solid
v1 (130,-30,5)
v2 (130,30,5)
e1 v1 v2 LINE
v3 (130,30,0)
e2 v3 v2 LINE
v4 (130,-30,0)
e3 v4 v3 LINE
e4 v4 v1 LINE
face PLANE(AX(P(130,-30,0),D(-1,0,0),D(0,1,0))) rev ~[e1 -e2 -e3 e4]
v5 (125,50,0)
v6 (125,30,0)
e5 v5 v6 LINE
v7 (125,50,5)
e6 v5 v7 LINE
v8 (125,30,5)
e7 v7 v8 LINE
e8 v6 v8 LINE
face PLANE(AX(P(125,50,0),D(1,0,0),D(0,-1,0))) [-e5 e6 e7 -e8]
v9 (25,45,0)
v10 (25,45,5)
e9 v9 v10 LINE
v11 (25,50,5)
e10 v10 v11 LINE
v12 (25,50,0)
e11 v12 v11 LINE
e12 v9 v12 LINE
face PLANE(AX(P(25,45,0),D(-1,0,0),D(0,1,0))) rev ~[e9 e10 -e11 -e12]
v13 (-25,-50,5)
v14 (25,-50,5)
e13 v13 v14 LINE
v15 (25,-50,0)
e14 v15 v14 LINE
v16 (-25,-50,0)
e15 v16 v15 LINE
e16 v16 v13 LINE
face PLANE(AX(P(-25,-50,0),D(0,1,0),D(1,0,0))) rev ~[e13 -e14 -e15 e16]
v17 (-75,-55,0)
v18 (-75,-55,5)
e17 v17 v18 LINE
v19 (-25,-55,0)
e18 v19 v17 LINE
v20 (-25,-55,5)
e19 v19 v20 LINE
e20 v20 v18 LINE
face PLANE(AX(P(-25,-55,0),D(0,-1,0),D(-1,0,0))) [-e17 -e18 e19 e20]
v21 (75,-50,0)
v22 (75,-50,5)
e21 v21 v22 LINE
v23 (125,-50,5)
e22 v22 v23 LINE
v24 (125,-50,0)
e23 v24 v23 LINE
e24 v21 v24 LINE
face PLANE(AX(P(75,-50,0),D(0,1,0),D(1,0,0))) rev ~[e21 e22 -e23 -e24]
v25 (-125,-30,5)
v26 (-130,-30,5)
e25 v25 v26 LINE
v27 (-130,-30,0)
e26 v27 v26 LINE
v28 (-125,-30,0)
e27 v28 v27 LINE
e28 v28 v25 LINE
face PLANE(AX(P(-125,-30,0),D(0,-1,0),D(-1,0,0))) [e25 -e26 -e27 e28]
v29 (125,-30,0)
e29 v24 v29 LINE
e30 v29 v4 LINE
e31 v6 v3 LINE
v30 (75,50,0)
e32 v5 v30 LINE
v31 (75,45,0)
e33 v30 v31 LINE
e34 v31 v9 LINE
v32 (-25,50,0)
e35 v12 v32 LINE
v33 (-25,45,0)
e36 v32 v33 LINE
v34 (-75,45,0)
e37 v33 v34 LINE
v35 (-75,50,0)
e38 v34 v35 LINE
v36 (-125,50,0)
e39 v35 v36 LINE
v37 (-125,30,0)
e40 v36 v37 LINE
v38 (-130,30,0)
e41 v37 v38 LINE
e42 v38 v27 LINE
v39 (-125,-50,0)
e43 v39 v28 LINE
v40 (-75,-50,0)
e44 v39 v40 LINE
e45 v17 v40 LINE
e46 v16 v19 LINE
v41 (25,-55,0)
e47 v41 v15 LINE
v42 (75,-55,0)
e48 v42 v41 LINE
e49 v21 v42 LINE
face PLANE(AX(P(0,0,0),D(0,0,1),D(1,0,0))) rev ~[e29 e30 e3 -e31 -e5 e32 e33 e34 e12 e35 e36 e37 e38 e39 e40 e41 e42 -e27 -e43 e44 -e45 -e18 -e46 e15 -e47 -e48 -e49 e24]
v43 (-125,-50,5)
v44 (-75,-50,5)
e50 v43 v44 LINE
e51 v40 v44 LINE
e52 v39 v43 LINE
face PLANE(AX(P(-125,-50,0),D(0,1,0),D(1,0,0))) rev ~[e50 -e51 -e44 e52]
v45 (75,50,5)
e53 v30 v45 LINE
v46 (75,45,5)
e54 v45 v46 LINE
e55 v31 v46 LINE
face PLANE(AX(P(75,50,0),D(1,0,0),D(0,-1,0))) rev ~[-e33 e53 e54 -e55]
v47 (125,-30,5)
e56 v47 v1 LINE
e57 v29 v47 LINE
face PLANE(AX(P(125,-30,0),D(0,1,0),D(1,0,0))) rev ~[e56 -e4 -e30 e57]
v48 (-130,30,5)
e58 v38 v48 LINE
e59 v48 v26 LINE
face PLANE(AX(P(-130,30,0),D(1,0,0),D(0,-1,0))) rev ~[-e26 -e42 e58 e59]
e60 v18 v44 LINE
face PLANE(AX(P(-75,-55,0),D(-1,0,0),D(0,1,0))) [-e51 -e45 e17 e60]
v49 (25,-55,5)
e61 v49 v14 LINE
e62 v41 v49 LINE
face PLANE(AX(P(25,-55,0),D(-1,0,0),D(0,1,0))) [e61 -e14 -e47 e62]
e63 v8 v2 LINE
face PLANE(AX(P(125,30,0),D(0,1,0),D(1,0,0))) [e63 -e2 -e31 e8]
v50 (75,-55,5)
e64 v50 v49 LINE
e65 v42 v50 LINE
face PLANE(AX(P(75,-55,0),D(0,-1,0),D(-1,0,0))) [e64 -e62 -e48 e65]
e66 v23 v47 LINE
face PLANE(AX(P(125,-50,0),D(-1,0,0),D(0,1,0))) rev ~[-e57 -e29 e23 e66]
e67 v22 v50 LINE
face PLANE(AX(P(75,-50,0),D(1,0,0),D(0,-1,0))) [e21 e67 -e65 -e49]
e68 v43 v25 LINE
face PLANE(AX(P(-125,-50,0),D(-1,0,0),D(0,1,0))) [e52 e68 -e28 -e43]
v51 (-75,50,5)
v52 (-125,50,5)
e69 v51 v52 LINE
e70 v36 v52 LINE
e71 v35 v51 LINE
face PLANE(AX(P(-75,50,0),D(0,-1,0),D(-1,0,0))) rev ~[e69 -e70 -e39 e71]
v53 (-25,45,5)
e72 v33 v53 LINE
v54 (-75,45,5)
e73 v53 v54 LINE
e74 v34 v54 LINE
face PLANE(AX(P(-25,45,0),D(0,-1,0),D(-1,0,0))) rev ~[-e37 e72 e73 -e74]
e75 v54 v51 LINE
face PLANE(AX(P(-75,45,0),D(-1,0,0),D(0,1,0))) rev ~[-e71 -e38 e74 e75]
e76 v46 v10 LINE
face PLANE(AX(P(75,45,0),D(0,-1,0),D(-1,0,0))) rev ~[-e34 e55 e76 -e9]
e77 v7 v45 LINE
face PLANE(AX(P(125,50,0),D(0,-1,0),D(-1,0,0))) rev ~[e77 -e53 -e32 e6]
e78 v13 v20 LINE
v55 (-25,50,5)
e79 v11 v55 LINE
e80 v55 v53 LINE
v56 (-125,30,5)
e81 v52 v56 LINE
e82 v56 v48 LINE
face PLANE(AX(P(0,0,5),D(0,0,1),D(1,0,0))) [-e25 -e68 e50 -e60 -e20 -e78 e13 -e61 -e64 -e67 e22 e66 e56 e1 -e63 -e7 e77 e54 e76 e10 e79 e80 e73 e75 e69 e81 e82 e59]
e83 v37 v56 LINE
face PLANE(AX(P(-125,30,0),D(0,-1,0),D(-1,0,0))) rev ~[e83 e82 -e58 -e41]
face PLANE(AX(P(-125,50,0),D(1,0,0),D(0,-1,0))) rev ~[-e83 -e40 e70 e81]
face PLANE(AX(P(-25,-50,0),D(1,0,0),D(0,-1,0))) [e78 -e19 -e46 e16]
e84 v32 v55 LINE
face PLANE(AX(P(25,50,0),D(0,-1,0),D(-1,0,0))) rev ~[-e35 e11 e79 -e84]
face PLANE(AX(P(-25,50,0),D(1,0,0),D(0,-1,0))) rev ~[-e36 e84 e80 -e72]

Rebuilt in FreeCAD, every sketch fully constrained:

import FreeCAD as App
import Part
import Sketcher

doc = App.newDocument("Part")
body = doc.addObject("PartDesign::Body", "Body")

# Sketch on XY plane
sketch1 = body.newObject("Sketcher::SketchObject", "Sketch")
sketch1.AttachmentSupport = (doc.getObject("XY_Plane"), [""])
sketch1.MapMode = "FlatFace"
sketch1.addGeometry([
    Part.LineSegment(App.Vector(-125, -30, 0), App.Vector(-125, -50, 0)),  # 0
    Part.LineSegment(App.Vector(-125, -50, 0), App.Vector(-75, -50, 0)),  # 1
    Part.LineSegment(App.Vector(-75, -50, 0), App.Vector(-75, -55, 0)),  # 2
    Part.LineSegment(App.Vector(-75, -55, 0), App.Vector(-25, -55, 0)),  # 3
    Part.LineSegment(App.Vector(-25, -55, 0), App.Vector(-25, -50, 0)),  # 4
    Part.LineSegment(App.Vector(-25, -50, 0), App.Vector(25, -50, 0)),  # 5
    Part.LineSegment(App.Vector(25, -50, 0), App.Vector(25, -55, 0)),  # 6
    Part.LineSegment(App.Vector(25, -55, 0), App.Vector(75, -55, 0)),  # 7
    Part.LineSegment(App.Vector(75, -55, 0), App.Vector(75, -50, 0)),  # 8
    Part.LineSegment(App.Vector(75, -50, 0), App.Vector(125, -50, 0)),  # 9
    Part.LineSegment(App.Vector(125, -50, 0), App.Vector(125, -30, 0)),  # 10
    Part.LineSegment(App.Vector(125, -30, 0), App.Vector(130, -30, 0)),  # 11
    Part.LineSegment(App.Vector(130, -30, 0), App.Vector(130, 30, 0)),  # 12
    Part.LineSegment(App.Vector(130, 30, 0), App.Vector(125, 30, 0)),  # 13
    Part.LineSegment(App.Vector(125, 30, 0), App.Vector(125, 50, 0)),  # 14
    Part.LineSegment(App.Vector(125, 50, 0), App.Vector(75, 50, 0)),  # 15
    Part.LineSegment(App.Vector(75, 50, 0), App.Vector(75, 45, 0)),  # 16
    Part.LineSegment(App.Vector(75, 45, 0), App.Vector(25, 45, 0)),  # 17
    Part.LineSegment(App.Vector(25, 45, 0), App.Vector(25, 50, 0)),  # 18
    Part.LineSegment(App.Vector(25, 50, 0), App.Vector(-25, 50, 0)),  # 19
    Part.LineSegment(App.Vector(-25, 50, 0), App.Vector(-25, 45, 0)),  # 20
    Part.LineSegment(App.Vector(-25, 45, 0), App.Vector(-75, 45, 0)),  # 21
    Part.LineSegment(App.Vector(-75, 45, 0), App.Vector(-75, 50, 0)),  # 22
    Part.LineSegment(App.Vector(-75, 50, 0), App.Vector(-125, 50, 0)),  # 23
    Part.LineSegment(App.Vector(-125, 50, 0), App.Vector(-125, 30, 0)),  # 24
    Part.LineSegment(App.Vector(-125, 30, 0), App.Vector(-130, 30, 0)),  # 25
    Part.LineSegment(App.Vector(-130, 30, 0), App.Vector(-130, -30, 0)),  # 26
    Part.LineSegment(App.Vector(-130, -30, 0), App.Vector(-125, -30, 0)),  # 27
], False)
sketch1.addConstraint([
    Sketcher.Constraint("Coincident", 0, 2, 1, 1),
    Sketcher.Constraint("Coincident", 1, 2, 2, 1),
    Sketcher.Constraint("Coincident", 2, 2, 3, 1),
    Sketcher.Constraint("Coincident", 3, 2, 4, 1),
    Sketcher.Constraint("Coincident", 4, 2, 5, 1),
    Sketcher.Constraint("Coincident", 5, 2, 6, 1),
    Sketcher.Constraint("Coincident", 6, 2, 7, 1),
    Sketcher.Constraint("Coincident", 7, 2, 8, 1),
    Sketcher.Constraint("Coincident", 8, 2, 9, 1),
    Sketcher.Constraint("Coincident", 9, 2, 10, 1),
    Sketcher.Constraint("Coincident", 10, 2, 11, 1),
    Sketcher.Constraint("Coincident", 11, 2, 12, 1),
    Sketcher.Constraint("Coincident", 12, 2, 13, 1),
    Sketcher.Constraint("Coincident", 13, 2, 14, 1),
    Sketcher.Constraint("Coincident", 14, 2, 15, 1),
    Sketcher.Constraint("Coincident", 15, 2, 16, 1),
    Sketcher.Constraint("Coincident", 16, 2, 17, 1),
    Sketcher.Constraint("Coincident", 17, 2, 18, 1),
    Sketcher.Constraint("Coincident", 18, 2, 19, 1),
    Sketcher.Constraint("Coincident", 19, 2, 20, 1),
    Sketcher.Constraint("Coincident", 20, 2, 21, 1),
    Sketcher.Constraint("Coincident", 21, 2, 22, 1),
    Sketcher.Constraint("Coincident", 22, 2, 23, 1),
    Sketcher.Constraint("Coincident", 23, 2, 24, 1),
    Sketcher.Constraint("Coincident", 24, 2, 25, 1),
    Sketcher.Constraint("Coincident", 25, 2, 26, 1),
    Sketcher.Constraint("Coincident", 26, 2, 27, 1),
    Sketcher.Constraint("Coincident", 27, 2, 0, 1),
    Sketcher.Constraint("Vertical", 0),
    Sketcher.Constraint("Horizontal", 1),
    Sketcher.Constraint("Vertical", 2),
    Sketcher.Constraint("Horizontal", 3),
    Sketcher.Constraint("Vertical", 4),
    Sketcher.Constraint("Horizontal", 5),
    Sketcher.Constraint("Vertical", 6),
    Sketcher.Constraint("Horizontal", 7),
    Sketcher.Constraint("Vertical", 8),
    Sketcher.Constraint("Horizontal", 9),
    Sketcher.Constraint("Vertical", 10),
    Sketcher.Constraint("Horizontal", 11),
    Sketcher.Constraint("Vertical", 12),
    Sketcher.Constraint("Horizontal", 13),
    Sketcher.Constraint("Vertical", 14),
    Sketcher.Constraint("Horizontal", 15),
    Sketcher.Constraint("Vertical", 16),
    Sketcher.Constraint("Horizontal", 17),
    Sketcher.Constraint("Vertical", 18),
    Sketcher.Constraint("Horizontal", 19),
    Sketcher.Constraint("Vertical", 20),
    Sketcher.Constraint("Horizontal", 21),
    Sketcher.Constraint("Vertical", 22),
    Sketcher.Constraint("Horizontal", 23),
    Sketcher.Constraint("Vertical", 24),
    Sketcher.Constraint("Horizontal", 25),
    Sketcher.Constraint("Vertical", 26),
    Sketcher.Constraint("Horizontal", 27),
    Sketcher.Constraint("Symmetric", 0, 2, 14, 2, -1, 1),
    Sketcher.Constraint("Symmetric", 4, 2, 18, 2, -1, 1),
    Sketcher.Constraint("Symmetric", 8, 2, 22, 2, -1, 1),
    Sketcher.Constraint("Symmetric", 10, 2, 24, 2, -1, 1),
    Sketcher.Constraint("Symmetric", 12, 2, 26, 2, -1, 1),
    Sketcher.Constraint("Symmetric", 3, 2, 6, 2, -2),
    Sketcher.Constraint("Symmetric", 1, 2, 8, 2, -2),
    Sketcher.Constraint("Symmetric", 17, 2, 20, 2, -2),
    Sketcher.Constraint("Symmetric", 13, 2, 24, 2, -2),
    Sketcher.Constraint("Horizontal", 1, 2, 4, 2),
    Sketcher.Constraint("Vertical", 8, 2, 15, 2),
    Sketcher.Constraint("Equal", 1, 3),
    Sketcher.Constraint("Equal", 3, 5),
    Sketcher.Constraint("Equal", 27, 2),
    Sketcher.Constraint("Equal", 8, 16),
    Sketcher.Constraint("DistanceX", 1, 1, 1, 2, 50.0),
    Sketcher.Constraint("DistanceX", 11, 1, 11, 2, 5.0),
    Sketcher.Constraint("DistanceY", 0, 2, 0, 1, 20.0),
    Sketcher.Constraint("DistanceY", 0, 2, -1, 1, 50.0),
])
pad1 = body.newObject("PartDesign::Pad", "Pad")
pad1.Profile = sketch1
pad1.Length = 5

doc.recompute()
